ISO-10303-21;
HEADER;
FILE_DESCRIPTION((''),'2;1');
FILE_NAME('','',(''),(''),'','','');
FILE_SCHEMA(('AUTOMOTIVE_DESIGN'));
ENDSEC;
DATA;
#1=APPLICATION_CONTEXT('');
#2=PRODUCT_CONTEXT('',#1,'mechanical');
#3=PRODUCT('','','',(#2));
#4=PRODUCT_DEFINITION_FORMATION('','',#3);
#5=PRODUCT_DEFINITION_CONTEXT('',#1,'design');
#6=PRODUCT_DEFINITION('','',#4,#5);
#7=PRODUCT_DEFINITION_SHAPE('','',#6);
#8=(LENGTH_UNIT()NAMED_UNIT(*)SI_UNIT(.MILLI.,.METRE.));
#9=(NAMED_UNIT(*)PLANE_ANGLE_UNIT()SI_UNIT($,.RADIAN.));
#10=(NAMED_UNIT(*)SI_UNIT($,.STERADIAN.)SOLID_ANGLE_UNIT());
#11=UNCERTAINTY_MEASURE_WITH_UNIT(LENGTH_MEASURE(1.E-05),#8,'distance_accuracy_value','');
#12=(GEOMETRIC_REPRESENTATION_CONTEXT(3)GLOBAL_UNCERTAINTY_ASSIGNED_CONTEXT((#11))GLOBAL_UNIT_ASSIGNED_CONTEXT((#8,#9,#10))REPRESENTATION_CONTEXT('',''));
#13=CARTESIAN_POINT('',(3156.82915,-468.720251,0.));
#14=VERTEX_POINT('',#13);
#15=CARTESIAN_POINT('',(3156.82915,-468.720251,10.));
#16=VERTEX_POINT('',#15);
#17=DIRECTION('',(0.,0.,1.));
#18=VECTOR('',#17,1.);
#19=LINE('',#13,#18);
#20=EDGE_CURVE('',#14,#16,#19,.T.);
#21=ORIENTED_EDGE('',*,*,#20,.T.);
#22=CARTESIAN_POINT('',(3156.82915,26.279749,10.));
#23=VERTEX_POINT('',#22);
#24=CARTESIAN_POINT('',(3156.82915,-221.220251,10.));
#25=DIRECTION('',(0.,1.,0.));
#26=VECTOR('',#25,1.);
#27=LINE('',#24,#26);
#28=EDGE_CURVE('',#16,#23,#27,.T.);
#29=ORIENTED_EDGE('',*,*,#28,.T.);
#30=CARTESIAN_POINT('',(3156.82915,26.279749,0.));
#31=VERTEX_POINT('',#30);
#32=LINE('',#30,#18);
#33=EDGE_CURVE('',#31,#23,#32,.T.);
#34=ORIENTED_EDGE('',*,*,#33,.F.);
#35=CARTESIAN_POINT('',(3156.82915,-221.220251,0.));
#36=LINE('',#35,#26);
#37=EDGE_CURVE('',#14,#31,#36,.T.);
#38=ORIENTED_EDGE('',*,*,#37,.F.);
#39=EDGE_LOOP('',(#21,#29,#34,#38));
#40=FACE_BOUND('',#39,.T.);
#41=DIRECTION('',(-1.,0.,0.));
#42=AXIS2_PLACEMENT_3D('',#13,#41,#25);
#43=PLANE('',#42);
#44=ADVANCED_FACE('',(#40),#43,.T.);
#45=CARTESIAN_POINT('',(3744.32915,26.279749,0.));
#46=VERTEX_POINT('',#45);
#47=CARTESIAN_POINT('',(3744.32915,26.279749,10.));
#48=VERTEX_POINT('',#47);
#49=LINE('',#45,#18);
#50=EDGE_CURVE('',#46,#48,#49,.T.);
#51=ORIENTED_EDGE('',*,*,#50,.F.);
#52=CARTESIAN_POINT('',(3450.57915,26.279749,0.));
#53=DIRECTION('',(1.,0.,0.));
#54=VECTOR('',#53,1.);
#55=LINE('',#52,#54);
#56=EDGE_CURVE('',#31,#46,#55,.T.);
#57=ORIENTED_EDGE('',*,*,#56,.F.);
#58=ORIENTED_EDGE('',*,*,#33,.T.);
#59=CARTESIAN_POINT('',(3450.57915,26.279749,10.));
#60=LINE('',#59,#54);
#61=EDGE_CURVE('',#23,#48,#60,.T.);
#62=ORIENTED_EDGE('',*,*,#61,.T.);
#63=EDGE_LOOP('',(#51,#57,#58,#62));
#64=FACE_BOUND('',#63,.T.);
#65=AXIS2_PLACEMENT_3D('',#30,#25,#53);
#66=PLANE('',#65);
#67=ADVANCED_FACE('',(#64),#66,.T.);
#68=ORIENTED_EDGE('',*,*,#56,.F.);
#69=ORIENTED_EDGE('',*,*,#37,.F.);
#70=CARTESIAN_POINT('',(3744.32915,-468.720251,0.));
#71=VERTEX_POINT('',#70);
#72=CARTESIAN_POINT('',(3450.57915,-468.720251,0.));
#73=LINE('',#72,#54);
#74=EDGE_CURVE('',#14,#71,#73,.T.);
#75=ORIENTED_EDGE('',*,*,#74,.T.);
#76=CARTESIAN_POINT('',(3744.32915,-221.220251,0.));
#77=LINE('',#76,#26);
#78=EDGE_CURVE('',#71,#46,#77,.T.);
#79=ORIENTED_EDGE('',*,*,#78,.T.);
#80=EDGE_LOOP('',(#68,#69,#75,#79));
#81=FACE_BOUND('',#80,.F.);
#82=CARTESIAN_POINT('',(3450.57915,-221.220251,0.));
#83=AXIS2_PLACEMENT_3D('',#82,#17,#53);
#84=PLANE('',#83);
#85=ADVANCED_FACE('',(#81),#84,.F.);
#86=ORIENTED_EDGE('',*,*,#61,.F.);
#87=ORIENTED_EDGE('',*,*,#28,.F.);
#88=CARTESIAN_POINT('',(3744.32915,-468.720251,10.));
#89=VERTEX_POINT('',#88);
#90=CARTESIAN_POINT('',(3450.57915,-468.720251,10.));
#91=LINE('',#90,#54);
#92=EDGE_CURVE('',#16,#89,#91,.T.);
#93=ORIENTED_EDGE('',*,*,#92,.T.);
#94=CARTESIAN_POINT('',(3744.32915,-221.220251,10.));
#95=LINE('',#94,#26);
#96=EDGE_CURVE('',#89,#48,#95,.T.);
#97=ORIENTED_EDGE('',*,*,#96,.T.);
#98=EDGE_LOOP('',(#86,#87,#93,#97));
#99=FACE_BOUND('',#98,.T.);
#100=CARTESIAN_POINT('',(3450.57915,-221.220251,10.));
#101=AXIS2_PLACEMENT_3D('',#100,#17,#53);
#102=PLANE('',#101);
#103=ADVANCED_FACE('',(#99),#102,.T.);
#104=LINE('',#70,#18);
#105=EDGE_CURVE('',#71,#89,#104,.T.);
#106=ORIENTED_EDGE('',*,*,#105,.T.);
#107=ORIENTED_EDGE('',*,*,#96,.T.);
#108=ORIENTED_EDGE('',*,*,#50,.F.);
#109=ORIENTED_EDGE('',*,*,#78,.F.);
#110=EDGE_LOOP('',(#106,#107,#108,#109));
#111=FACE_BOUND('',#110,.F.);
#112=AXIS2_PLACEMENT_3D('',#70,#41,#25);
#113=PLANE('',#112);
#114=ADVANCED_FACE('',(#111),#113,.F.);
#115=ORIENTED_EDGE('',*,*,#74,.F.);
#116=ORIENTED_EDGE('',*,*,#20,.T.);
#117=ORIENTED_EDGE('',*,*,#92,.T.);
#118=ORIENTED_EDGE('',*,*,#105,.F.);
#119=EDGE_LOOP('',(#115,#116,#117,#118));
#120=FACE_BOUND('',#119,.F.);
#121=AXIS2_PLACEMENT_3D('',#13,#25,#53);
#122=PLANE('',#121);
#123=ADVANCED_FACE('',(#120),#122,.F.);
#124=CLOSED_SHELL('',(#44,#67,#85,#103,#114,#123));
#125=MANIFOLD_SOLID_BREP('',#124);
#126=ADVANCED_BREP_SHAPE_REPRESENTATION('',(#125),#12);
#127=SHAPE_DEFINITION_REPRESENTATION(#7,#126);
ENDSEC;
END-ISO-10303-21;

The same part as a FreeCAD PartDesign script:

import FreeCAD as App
import Part
import Sketcher

doc = App.newDocument("Part")
params = doc.addObject("Spreadsheet::Sheet", "Params")
for row, (alias, value) in enumerate([
    ("sketch1_height", "495 mm"),
    ("sketch1_width", "587.5 mm"),
    ("pad1_length", "10 mm"),
], start=1):
    params.set(f"A{row}", alias)
    params.set(f"B{row}", "=" + value)
    params.setAlias(f"B{row}", alias)

body = doc.addObject("PartDesign::Body", "Body")

# Sketch on XY plane
sketch1 = body.newObject("Sketcher::SketchObject", "Sketch")
sketch1.AttachmentSupport = (doc.getObject("XY_Plane"), [""])
sketch1.MapMode = "FlatFace"
sketch1.addGeometry([
    Part.LineSegment(App.Vector(3157, 26, 0), App.Vector(3157, -469, 0)),
    Part.LineSegment(App.Vector(3157, -469, 0), App.Vector(3744, -469, 0)),
    Part.LineSegment(App.Vector(3744, -469, 0), App.Vector(3744, 26, 0)),
    Part.LineSegment(App.Vector(3744, 26, 0), App.Vector(3157, 26, 0)),
], False)
sketch1.addConstraint([
    Sketcher.Constraint("Coincident", 0, 2, 1, 1),
    Sketcher.Constraint("Coincident", 1, 2, 2, 1),
    Sketcher.Constraint("Coincident", 2, 2, 3, 1),
    Sketcher.Constraint("Coincident", 3, 2, 0, 1),
    Sketcher.Constraint("Vertical", 0),
    Sketcher.Constraint("Horizontal", 1),
    Sketcher.Constraint("Vertical", 2),
    Sketcher.Constraint("Horizontal", 3),
    Sketcher.Constraint("DistanceY", 0, 2, 0, 1, 495.0),
    Sketcher.Constraint("DistanceX", 1, 1, 1, 2, 587.5),
    Sketcher.Constraint("DistanceX", -1, 1, 0, 2, 3156.82915),
    Sketcher.Constraint("DistanceY", 0, 2, -1, 1, 468.720251),
])
sketch1.setExpression("Constraints[8]", "Params.sketch1_height")
sketch1.setExpression("Constraints[9]", "Params.sketch1_width")
pad1 = body.newObject("PartDesign::Pad", "Pad")
pad1.Profile = sketch1
pad1.setExpression("Length", "Params.pad1_length")

doc.recompute()
